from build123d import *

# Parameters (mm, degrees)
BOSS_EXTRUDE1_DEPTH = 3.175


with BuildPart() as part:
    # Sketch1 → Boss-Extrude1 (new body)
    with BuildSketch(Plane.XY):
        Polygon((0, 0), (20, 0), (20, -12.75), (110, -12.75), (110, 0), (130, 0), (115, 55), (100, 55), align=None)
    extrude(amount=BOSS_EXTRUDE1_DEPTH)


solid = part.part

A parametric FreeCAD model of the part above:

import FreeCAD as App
import Part
import Sketcher
from FreeCAD import Vector
Q = App.Units.Quantity


def add_polygon(sketch, points):
    """Adds a closed chain of lines whose ends are joined by coincident constraints."""
    first, n = sketch.GeometryCount, len(points)
    for a, b in zip(points, points[1:] + points[:1]):
        sketch.addGeometry(Part.LineSegment(App.Vector(*a, 0), App.Vector(*b, 0)), False)
    for i in range(n):
        sketch.addConstraint(Sketcher.Constraint("Coincident", first + i, 2, first + (i + 1) % n, 1))

doc = App.newDocument("Part")
body = doc.addObject("PartDesign::Body", "Body")

# Sketch on XY plane
sketch1 = body.newObject("Sketcher::SketchObject", "Sketch")
sketch1.AttachmentSupport = (doc.getObject("XY_Plane"), [""])
sketch1.MapMode = "FlatFace"
add_polygon(sketch1, [(0, 0), (20, 0), (20, -13), (110, -13), (110, 0), (130, 0), (115, 55), (100, 55)])  # lines 0-7
sketch1.addConstraint(Sketcher.Constraint("Horizontal", 0))
sketch1.addConstraint(Sketcher.Constraint("Vertical", 1))
sketch1.addConstraint(Sketcher.Constraint("Horizontal", 2))
sketch1.addConstraint(Sketcher.Constraint("Vertical", 3))
sketch1.addConstraint(Sketcher.Constraint("Horizontal", 4))
sketch1.addConstraint(Sketcher.Constraint("Horizontal", 6))
sketch1.addConstraint(Sketcher.Constraint("Coincident", 7, 2, -1, 1))
sketch1.addConstraint(Sketcher.Constraint("PointOnObject", 3, 2, -1))
sketch1.addConstraint(Sketcher.Constraint("Equal", 0, 4))
sketch1.addConstraint(Sketcher.Constraint("DistanceX", 0, 1, 0, 2, Q("20 mm")))
sketch1.addConstraint(Sketcher.Constraint("DistanceX", 2, 1, 2, 2, Q("90 mm")))
sketch1.addConstraint(Sketcher.Constraint("DistanceX", 6, 2, 6, 1, Q("15 mm")))
sketch1.addConstraint(Sketcher.Constraint("DistanceX", -1, 1, 5, 2, Q("115 mm")))
sketch1.addConstraint(Sketcher.Constraint("DistanceY", -1, 1, 5, 2, Q("55 mm")))
sketch1.addConstraint(Sketcher.Constraint("DistanceY", 1, 2, 1, 1, Q("12.75 mm")))
pad1 = body.newObject("PartDesign::Pad", "Pad")
pad1.Profile = sketch1
pad1.Length = 3.175

doc.recompute()
